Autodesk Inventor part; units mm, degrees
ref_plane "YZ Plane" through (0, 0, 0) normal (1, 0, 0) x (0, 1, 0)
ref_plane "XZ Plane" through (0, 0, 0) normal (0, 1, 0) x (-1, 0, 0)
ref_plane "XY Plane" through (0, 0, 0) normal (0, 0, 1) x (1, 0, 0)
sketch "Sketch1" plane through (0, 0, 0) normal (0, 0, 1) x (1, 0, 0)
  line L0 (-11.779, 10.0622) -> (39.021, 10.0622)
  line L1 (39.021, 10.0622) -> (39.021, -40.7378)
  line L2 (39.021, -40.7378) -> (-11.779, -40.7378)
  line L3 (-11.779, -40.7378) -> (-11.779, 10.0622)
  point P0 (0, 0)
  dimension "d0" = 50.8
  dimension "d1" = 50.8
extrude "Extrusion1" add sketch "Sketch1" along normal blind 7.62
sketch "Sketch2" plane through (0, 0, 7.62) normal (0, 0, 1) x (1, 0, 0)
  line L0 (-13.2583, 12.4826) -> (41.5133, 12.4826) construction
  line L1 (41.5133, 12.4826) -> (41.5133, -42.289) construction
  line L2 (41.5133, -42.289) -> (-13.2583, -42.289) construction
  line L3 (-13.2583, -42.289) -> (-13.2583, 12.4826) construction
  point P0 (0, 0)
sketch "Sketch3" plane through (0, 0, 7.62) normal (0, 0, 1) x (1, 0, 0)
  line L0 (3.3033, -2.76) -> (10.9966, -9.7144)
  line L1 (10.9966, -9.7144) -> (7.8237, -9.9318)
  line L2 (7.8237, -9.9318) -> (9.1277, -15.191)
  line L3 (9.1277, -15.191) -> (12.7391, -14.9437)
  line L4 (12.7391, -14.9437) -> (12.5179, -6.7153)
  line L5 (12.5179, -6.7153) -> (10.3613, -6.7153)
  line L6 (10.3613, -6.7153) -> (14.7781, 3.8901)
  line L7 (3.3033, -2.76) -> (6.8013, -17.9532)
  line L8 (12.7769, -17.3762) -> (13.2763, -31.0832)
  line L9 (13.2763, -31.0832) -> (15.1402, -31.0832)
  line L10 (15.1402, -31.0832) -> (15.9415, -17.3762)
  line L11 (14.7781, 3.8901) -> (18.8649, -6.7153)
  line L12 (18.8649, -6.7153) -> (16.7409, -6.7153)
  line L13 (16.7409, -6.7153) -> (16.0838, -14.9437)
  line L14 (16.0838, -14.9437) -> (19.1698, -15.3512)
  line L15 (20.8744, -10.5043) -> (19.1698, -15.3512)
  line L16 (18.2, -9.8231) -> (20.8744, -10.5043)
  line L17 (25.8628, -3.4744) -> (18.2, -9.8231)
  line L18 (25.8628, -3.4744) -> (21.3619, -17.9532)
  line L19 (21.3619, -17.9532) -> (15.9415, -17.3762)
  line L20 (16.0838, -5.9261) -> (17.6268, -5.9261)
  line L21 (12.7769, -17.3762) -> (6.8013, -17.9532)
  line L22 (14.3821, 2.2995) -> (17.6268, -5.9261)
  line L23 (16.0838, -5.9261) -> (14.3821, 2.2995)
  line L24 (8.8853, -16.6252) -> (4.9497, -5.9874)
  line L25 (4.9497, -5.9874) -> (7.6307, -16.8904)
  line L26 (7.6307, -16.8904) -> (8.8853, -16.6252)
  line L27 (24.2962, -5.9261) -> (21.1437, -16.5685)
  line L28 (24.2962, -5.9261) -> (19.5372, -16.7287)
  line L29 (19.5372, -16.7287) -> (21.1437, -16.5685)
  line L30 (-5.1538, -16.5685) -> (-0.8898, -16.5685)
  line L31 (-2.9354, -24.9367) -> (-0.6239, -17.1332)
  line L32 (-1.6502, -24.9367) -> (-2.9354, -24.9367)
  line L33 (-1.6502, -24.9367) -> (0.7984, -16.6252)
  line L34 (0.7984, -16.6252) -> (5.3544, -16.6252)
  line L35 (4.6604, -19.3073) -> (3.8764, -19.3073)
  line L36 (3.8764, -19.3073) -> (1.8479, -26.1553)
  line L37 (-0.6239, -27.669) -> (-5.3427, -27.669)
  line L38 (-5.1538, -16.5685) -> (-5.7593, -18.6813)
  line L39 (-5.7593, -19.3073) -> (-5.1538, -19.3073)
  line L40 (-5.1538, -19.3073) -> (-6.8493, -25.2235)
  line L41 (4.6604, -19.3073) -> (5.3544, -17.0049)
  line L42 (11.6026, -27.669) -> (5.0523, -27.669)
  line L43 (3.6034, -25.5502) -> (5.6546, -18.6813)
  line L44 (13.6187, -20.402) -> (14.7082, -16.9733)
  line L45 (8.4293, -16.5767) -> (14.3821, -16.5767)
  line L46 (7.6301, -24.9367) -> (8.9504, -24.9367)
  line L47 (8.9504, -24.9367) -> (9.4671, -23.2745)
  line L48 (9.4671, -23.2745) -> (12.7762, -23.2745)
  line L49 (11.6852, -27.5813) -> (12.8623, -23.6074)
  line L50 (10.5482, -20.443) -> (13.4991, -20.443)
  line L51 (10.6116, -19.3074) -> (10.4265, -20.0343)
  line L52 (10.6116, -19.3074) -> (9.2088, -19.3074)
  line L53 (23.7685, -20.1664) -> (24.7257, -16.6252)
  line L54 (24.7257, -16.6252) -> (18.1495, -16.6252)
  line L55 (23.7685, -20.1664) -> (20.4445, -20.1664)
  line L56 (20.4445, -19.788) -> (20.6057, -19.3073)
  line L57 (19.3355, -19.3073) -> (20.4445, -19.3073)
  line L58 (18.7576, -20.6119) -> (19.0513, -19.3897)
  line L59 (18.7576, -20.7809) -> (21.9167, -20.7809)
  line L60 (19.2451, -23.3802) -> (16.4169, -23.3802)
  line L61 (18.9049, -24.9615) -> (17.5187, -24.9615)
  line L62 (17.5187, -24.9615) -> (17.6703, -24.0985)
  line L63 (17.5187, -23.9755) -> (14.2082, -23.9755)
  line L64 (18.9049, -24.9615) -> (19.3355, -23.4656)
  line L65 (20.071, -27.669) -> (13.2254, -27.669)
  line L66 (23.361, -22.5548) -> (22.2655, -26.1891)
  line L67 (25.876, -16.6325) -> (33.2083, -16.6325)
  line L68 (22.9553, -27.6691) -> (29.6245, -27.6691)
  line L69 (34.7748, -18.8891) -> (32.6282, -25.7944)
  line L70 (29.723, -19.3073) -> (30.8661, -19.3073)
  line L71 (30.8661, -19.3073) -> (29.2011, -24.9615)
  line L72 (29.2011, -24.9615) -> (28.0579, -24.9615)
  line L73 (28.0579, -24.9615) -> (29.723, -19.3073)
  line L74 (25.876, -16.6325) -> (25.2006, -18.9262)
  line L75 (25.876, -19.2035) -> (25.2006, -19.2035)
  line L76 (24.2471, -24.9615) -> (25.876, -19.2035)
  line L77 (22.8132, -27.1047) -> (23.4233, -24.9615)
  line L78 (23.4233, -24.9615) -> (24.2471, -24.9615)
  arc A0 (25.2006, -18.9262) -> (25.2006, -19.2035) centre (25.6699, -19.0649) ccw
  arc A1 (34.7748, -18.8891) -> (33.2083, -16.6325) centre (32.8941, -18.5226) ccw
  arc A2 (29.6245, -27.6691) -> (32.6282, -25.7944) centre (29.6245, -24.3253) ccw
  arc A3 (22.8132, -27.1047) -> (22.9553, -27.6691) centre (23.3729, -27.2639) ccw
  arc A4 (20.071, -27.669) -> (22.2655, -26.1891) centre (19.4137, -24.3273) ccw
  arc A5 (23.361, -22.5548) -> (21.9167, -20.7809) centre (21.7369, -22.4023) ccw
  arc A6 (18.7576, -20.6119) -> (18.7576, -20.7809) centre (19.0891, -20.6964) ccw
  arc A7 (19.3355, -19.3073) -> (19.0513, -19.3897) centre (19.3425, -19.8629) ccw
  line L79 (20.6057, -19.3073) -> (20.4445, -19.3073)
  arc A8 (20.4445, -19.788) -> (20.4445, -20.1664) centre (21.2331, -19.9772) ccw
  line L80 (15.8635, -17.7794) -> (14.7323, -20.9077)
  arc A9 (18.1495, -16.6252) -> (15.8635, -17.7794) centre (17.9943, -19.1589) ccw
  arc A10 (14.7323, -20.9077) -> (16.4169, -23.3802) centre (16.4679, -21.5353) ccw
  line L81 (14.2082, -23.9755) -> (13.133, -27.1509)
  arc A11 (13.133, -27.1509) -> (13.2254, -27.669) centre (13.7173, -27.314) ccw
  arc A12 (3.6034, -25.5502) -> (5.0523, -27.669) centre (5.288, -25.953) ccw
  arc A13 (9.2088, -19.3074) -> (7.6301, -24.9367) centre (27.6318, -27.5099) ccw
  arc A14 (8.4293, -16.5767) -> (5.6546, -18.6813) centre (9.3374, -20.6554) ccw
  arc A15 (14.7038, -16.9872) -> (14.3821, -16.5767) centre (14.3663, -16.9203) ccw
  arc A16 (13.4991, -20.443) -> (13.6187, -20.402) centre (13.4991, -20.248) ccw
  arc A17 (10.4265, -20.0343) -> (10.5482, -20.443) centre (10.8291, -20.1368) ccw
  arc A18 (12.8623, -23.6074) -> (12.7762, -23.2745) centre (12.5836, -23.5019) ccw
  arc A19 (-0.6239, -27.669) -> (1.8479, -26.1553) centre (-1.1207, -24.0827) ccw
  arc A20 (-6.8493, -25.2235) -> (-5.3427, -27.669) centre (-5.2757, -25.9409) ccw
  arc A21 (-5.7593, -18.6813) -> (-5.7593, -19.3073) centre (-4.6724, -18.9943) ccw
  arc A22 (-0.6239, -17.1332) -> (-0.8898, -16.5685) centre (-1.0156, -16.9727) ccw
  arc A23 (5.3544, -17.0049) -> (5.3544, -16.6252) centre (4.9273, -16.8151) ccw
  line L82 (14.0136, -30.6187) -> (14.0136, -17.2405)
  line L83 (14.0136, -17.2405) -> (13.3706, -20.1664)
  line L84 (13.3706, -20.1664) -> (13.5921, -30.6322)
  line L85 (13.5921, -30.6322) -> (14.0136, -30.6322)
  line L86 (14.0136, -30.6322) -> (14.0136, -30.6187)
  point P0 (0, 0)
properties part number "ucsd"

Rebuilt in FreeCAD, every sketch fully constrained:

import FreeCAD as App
import Part
import Sketcher
Q = App.Units.Quantity


def add_polygon(sketch, points):
    """Adds a closed chain of lines whose ends are joined by coincident constraints."""
    first, n = sketch.GeometryCount, len(points)
    for a, b in zip(points, points[1:] + points[:1]):
        sketch.addGeometry(Part.LineSegment(App.Vector(*a, 0), App.Vector(*b, 0)), False)
    for i in range(n):
        sketch.addConstraint(Sketcher.Constraint("Coincident", first + i, 2, first + (i + 1) % n, 1))

doc = App.newDocument("Part")
params = doc.addObject("Spreadsheet::Sheet", "Params")
for row, (alias, value) in enumerate([
    ("sketch1_width", "2 in"),
    ("pad1_length", "0.3 in"),
], start=1):
    params.set(f"A{row}", alias)
    params.set(f"B{row}", "=" + value)
    params.setAlias(f"B{row}", alias)

body = doc.addObject("PartDesign::Body", "Body")

# Sketch on XY plane
sketch1 = doc.addObject("Sketcher::SketchObject", "Sketch")
body.addObject(sketch1)
sketch1.AttachmentSupport = (doc.XY_Plane, [""])
sketch1.MapMode = "FlatFace"
add_polygon(sketch1, [(39, 10), (-12, 10), (-12, -41), (39, -41)])  # lines 0-3
sketch1.addConstraint([
    Sketcher.Constraint("Horizontal", 0),
    Sketcher.Constraint("Vertical", 1),
    Sketcher.Constraint("Horizontal", 2),
    Sketcher.Constraint("Vertical", 3),
    Sketcher.Constraint("Equal", 2, 1),
    Sketcher.Constraint("DistanceX", 0, 2, 0, 1, Q("2 in")),
    Sketcher.Constraint("DistanceX", 0, 2, -1, 1, 11.779),
    Sketcher.Constraint("DistanceY", -1, 1, 0, 2, 10.0622),
])
sketch1.setExpression("Constraints[9]", "Params.sketch1_width")
pad1 = doc.addObject("PartDesign::Pad", "Pad")
body.addObject(pad1)
pad1.Profile = sketch1
pad1.setExpression("Length", "Params.pad1_length")

doc.recompute()
